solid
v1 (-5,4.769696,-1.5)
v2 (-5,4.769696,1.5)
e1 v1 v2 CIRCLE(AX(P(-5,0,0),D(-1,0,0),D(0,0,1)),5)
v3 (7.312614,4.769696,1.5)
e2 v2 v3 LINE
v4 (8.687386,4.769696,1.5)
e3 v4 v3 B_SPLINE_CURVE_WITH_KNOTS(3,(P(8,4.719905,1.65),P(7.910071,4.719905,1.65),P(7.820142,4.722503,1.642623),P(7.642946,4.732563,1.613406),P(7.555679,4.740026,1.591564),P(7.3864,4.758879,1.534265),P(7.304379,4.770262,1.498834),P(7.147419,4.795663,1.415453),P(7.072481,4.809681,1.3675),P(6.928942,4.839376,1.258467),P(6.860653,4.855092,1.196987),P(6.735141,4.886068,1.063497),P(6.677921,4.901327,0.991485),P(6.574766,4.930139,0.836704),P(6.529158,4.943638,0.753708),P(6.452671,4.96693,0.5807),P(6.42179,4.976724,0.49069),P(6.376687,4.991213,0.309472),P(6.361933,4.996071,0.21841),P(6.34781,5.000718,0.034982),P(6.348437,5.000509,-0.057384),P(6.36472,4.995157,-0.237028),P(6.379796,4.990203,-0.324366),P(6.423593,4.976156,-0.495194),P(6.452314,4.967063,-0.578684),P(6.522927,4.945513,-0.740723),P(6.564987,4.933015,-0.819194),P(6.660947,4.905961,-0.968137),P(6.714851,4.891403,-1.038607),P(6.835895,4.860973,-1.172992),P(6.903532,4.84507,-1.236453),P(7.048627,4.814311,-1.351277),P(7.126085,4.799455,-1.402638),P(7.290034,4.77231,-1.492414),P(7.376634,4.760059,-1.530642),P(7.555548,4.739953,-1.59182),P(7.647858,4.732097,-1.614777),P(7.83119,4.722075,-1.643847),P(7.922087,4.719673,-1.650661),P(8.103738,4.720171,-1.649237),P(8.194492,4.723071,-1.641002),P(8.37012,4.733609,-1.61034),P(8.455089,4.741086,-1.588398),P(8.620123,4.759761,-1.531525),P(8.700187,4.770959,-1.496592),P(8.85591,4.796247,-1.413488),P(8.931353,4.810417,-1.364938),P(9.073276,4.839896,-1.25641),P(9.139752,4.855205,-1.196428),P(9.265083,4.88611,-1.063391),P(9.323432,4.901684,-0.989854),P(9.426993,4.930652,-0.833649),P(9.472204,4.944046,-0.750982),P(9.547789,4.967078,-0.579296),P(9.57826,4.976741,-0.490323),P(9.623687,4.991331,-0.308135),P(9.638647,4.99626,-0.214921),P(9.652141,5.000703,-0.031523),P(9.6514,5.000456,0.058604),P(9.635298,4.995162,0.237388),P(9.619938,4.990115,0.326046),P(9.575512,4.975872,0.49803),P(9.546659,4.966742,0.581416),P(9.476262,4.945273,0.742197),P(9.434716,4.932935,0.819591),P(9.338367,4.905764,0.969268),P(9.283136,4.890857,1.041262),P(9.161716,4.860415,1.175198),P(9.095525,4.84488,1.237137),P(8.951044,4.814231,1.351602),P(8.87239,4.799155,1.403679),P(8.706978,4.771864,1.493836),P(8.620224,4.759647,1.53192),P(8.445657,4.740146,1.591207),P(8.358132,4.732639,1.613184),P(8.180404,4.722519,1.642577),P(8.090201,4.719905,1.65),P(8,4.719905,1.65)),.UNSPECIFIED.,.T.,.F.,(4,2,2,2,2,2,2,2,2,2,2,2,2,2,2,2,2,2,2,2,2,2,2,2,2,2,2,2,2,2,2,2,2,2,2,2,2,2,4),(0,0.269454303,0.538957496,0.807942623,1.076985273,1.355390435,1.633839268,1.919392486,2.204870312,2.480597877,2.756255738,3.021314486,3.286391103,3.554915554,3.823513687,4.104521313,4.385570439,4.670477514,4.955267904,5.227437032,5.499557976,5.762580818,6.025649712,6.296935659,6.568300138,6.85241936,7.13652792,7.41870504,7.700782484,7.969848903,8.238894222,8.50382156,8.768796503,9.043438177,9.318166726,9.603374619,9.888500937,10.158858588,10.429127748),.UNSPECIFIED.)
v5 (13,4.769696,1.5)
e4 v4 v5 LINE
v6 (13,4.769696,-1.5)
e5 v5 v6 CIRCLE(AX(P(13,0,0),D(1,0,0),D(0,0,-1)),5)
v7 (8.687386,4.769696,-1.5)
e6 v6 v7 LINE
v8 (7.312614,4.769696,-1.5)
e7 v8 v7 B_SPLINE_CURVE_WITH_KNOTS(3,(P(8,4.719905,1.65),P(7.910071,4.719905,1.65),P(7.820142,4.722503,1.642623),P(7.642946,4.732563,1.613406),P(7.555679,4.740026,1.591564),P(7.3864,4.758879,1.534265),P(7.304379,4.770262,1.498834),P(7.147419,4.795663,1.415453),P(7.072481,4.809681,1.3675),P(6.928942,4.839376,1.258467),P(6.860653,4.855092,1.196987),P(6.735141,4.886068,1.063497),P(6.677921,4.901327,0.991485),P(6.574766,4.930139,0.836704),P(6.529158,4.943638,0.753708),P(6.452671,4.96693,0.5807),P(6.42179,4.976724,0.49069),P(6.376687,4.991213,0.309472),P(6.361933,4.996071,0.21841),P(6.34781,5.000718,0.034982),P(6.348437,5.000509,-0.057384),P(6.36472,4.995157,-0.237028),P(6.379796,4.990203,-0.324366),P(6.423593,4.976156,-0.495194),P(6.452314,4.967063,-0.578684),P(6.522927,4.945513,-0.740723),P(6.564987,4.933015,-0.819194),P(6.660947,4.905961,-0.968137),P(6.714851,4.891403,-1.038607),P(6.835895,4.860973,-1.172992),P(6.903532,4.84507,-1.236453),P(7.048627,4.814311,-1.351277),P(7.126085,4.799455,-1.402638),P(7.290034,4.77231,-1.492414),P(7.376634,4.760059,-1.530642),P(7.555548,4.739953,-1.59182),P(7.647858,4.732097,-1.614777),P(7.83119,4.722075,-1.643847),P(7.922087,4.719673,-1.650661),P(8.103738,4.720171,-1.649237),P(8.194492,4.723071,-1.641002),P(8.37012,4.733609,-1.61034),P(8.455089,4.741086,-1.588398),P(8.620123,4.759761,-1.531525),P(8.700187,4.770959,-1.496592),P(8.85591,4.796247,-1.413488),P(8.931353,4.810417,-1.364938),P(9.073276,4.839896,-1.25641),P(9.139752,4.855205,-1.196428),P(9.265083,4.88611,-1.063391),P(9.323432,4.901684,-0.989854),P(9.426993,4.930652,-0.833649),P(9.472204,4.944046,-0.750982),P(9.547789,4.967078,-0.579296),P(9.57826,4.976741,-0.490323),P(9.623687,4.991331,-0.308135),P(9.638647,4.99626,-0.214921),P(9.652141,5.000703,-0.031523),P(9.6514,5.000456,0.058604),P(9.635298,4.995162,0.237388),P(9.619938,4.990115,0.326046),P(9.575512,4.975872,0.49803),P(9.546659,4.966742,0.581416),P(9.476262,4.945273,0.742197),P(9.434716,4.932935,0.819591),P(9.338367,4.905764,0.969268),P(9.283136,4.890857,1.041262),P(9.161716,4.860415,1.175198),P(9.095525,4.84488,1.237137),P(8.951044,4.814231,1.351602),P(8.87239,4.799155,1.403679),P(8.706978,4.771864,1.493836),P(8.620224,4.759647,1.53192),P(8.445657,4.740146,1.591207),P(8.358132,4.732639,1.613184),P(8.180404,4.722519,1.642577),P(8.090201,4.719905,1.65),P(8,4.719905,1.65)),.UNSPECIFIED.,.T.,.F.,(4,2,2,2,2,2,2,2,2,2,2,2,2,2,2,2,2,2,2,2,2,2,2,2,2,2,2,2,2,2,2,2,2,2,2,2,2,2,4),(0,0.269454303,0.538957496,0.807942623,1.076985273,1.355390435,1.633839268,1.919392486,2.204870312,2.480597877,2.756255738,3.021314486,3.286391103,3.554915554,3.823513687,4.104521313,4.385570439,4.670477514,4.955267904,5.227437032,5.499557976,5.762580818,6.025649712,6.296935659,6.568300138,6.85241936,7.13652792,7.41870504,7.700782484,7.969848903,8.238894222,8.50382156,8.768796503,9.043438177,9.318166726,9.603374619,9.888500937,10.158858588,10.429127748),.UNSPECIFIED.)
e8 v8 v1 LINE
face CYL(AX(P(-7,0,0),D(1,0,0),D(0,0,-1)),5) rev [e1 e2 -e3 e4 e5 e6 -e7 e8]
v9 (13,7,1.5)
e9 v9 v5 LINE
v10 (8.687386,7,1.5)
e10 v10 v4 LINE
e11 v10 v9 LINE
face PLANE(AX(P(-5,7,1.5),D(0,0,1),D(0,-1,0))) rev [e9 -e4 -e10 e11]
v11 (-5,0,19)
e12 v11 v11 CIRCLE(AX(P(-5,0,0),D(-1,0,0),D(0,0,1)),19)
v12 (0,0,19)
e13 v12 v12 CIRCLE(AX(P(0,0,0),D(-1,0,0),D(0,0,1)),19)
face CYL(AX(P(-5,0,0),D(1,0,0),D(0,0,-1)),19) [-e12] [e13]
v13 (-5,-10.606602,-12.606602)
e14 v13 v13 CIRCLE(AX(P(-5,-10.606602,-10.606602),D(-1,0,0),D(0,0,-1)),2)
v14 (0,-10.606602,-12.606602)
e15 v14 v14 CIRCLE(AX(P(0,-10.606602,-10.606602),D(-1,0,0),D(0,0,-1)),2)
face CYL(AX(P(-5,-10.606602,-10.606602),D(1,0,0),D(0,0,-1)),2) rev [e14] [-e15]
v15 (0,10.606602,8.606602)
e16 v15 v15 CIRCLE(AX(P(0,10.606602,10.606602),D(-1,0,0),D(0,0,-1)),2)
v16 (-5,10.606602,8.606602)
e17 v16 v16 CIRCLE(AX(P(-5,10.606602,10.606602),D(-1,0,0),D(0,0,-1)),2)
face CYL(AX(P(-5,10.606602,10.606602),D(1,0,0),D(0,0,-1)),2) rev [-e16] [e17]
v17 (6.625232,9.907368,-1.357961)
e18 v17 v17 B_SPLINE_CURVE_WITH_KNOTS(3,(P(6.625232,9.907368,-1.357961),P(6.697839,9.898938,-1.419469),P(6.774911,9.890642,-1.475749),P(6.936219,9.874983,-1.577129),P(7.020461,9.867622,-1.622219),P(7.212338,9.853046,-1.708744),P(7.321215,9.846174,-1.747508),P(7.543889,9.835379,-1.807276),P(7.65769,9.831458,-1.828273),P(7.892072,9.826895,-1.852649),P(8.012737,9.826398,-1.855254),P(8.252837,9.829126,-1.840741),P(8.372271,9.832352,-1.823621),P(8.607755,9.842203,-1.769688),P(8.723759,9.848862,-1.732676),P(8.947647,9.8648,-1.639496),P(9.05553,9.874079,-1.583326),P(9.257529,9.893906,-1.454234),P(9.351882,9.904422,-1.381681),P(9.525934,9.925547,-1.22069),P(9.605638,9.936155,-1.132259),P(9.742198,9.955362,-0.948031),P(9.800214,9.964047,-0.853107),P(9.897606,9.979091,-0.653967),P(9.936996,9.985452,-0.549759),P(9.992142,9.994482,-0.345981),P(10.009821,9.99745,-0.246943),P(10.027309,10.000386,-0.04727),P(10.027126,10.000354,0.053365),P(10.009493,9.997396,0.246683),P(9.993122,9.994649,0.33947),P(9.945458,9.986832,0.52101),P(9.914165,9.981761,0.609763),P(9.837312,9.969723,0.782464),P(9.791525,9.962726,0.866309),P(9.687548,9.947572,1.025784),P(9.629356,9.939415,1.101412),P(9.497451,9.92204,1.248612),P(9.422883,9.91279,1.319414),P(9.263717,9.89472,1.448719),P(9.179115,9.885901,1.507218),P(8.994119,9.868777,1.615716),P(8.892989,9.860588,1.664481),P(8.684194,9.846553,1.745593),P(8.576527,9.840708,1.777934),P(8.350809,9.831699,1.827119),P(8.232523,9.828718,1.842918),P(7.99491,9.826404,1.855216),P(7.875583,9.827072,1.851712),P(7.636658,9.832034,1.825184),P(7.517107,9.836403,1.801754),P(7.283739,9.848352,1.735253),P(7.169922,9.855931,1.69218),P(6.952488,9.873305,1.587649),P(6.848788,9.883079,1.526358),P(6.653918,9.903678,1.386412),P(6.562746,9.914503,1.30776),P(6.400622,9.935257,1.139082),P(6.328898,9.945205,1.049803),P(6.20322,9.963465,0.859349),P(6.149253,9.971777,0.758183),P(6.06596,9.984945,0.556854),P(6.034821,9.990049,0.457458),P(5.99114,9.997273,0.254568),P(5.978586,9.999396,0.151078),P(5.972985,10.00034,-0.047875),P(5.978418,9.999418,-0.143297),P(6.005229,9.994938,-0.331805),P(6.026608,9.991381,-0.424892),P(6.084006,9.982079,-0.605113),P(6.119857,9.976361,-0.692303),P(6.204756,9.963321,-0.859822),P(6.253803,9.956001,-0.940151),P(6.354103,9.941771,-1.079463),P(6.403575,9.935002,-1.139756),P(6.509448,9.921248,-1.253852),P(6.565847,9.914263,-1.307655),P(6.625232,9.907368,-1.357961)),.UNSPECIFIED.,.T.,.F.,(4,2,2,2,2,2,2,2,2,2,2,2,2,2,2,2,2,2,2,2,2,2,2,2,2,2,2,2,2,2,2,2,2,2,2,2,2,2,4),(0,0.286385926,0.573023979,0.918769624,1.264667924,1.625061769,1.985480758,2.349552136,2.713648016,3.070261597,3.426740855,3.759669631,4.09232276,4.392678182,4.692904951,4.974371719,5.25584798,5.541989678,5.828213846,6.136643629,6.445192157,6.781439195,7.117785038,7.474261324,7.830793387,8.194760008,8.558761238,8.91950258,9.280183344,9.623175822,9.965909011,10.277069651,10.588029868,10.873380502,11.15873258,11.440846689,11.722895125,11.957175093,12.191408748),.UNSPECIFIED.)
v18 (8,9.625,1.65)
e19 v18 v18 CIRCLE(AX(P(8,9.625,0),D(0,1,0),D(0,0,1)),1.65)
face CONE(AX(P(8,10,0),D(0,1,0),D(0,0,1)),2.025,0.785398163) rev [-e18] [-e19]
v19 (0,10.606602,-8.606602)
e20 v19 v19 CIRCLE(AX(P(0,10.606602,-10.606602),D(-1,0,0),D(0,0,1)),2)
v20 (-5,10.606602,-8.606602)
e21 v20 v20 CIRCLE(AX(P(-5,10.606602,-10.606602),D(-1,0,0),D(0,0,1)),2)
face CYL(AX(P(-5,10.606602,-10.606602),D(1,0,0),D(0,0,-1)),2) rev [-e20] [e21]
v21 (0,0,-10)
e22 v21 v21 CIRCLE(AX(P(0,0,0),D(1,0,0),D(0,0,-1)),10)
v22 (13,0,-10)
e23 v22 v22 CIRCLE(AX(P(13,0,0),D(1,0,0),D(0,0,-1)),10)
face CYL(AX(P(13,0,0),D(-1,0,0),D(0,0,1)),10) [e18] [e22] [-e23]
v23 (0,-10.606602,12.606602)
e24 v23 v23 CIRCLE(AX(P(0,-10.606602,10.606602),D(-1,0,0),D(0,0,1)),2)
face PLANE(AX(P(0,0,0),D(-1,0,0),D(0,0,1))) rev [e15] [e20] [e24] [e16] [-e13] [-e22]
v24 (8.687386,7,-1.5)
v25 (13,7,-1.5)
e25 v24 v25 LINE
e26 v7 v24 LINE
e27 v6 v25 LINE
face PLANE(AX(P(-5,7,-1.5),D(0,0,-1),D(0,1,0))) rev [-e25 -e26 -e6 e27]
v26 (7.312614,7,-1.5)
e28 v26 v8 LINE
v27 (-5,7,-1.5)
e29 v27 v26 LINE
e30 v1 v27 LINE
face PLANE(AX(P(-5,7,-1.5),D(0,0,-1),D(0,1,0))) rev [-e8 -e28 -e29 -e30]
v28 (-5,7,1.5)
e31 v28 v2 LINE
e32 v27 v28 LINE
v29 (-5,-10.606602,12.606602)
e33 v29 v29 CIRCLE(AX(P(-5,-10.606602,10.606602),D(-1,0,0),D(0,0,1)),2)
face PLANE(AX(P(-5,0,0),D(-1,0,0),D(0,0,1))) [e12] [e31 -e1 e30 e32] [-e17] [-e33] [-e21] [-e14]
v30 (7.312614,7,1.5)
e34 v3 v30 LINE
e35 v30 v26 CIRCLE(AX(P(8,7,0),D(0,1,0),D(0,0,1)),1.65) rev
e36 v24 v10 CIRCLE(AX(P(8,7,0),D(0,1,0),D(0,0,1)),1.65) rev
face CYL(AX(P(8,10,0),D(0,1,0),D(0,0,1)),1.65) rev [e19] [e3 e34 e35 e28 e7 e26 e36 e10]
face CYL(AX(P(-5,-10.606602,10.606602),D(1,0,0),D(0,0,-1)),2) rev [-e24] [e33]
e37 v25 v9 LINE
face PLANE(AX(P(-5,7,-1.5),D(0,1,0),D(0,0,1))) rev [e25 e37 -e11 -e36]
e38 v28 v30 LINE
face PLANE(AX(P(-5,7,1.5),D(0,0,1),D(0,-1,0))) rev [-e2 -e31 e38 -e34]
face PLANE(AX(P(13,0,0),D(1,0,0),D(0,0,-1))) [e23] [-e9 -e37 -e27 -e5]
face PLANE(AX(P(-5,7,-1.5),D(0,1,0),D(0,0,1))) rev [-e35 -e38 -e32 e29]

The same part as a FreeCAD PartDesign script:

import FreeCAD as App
import Part
import Sketcher

doc = App.newDocument("Part")
body = doc.addObject("PartDesign::Body", "Body")

# Sketch on YZ plane
sketch1 = body.newObject("Sketcher::SketchObject", "Sketch")
sketch1.AttachmentSupport = (doc.getObject("YZ_Plane"), [""])
sketch1.MapMode = "FlatFace"
sketch1.addGeometry(Part.Circle(App.Vector(0, 0, 0), App.Vector(0, 0, 1), 10), False)
sketch1.addConstraint(Sketcher.Constraint("Coincident", 0, 3, -1, 1))
sketch1.addConstraint(Sketcher.Constraint("Diameter", 0, 20.0))
pad1 = body.newObject("PartDesign::Pad", "Pad")
pad1.Profile = sketch1
pad1.Length = 13

# Sketch on YZ plane
sketch2 = body.newObject("Sketcher::SketchObject", "Sketch001")
sketch2.AttachmentSupport = (doc.getObject("YZ_Plane"), [""])
sketch2.MapMode = "FlatFace"
sketch2.addGeometry(Part.Circle(App.Vector(0, 0, 0), App.Vector(0, 0, 1), 19), False)
sketch2.addGeometry(Part.Circle(App.Vector(-10.6, -10.6, 0), App.Vector(0, 0, 1), 2), False)
sketch2.addGeometry(Part.Circle(App.Vector(-10.6, 10.6, 0), App.Vector(0, 0, 1), 2), False)
sketch2.addGeometry(Part.Circle(App.Vector(10.6, -10.6, 0), App.Vector(0, 0, 1), 2), False)
sketch2.addGeometry(Part.Circle(App.Vector(10.6, 10.6, 0), App.Vector(0, 0, 1), 2), False)
sketch2.addConstraint(Sketcher.Constraint("Coincident", 0, 3, -1, 1))
sketch2.addConstraint(Sketcher.Constraint("Equal", 1, 2))
sketch2.addConstraint(Sketcher.Constraint("Equal", 2, 3))
sketch2.addConstraint(Sketcher.Constraint("Equal", 3, 4))
sketch2.addConstraint(Sketcher.Constraint("Symmetric", 2, 3, 3, 3, -1, 1))
sketch2.addConstraint(Sketcher.Constraint("Symmetric", 1, 3, 4, 3, -1, 1))
sketch2.addConstraint(Sketcher.Constraint("Symmetric", 1, 3, 3, 3, -2))
sketch2.addConstraint(Sketcher.Constraint("Diameter", 0, 38.0))
sketch2.addConstraint(Sketcher.Constraint("Diameter", 1, 4.0))
sketch2.addConstraint(Sketcher.Constraint("DistanceX", 1, 3, -1, 1, 10.606602))
sketch2.addConstraint(Sketcher.Constraint("DistanceY", 1, 3, -1, 1, 10.606602))
pad2 = body.newObject("PartDesign::Pad", "Pad001")
pad2.Profile = sketch2
pad2.Length = 5
pad2.Reversed = True

# Sketch on XZ plane
sketch3 = body.newObject("Sketcher::SketchObject", "Sketch002")
sketch3.AttachmentSupport = (doc.getObject("XZ_Plane"), [""])
sketch3.MapMode = "FlatFace"
sketch3.AttachmentOffset = App.Placement(App.Vector(0, 0, -10), App.Rotation())
sketch3.addGeometry(Part.Circle(App.Vector(8, 0, 0), App.Vector(0, 0, 1), 1.6), False)
sketch3.addConstraint(Sketcher.Constraint("PointOnObject", 0, 3, -1))
sketch3.addConstraint(Sketcher.Constraint("Diameter", 0, 3.3))
sketch3.addConstraint(Sketcher.Constraint("DistanceX", -1, 1, 0, 3, 8.0))
doc.recompute()
hole = body.newObject("PartDesign::Hole", "Hole")
hole.Profile = sketch3
hole.ThreadType = "None"
hole.Diameter = 3.3
hole.DepthType = "Dimension"
hole.Depth = 10.1
hole.DrillPoint = "Angled"
hole.DrillPointAngle = 118
hole.HoleCutType = "Countersink"
hole.HoleCutDiameter = 4.05
hole.HoleCutCountersinkAngle = 90
hole.Reversed = True

# Sketch on YZ plane
sketch4 = body.newObject("Sketcher::SketchObject", "Sketch003")
sketch4.AttachmentSupport = (doc.getObject("YZ_Plane"), [""])
sketch4.MapMode = "FlatFace"
sketch4.AttachmentOffset = App.Placement(App.Vector(0, 0, 13), App.Rotation())
sketch4.addGeometry(Part.Circle(App.Vector(0, 0, 0), App.Vector(0, 0, 1), 5), False)
sketch4.addConstraint(Sketcher.Constraint("Coincident", 0, 3, -1, 1))
sketch4.addConstraint(Sketcher.Constraint("Diameter", 0, 10.0))
pocket1 = body.newObject("PartDesign::Pocket", "Pocket")
pocket1.Profile = sketch4
pocket1.Length = 20

# Sketch on YZ plane
sketch5 = body.newObject("Sketcher::SketchObject", "Sketch004")
sketch5.AttachmentSupport = (doc.getObject("YZ_Plane"), [""])
sketch5.MapMode = "FlatFace"
sketch5.AttachmentOffset = App.Placement(App.Vector(0, 0, 13), App.Rotation())
sketch5.addGeometry(Part.LineSegment(App.Vector(7, 1.5, 0), App.Vector(3, 1.5, 0)), False)
sketch5.addGeometry(Part.LineSegment(App.Vector(3, 1.5, 0), App.Vector(3, -1.5, 0)), False)
sketch5.addGeometry(Part.LineSegment(App.Vector(3, -1.5, 0), App.Vector(7, -1.5, 0)), False)
sketch5.addGeometry(Part.LineSegment(App.Vector(7, -1.5, 0), App.Vector(7, 1.5, 0)), False)
sketch5.addConstraint(Sketcher.Constraint("Coincident", 0, 2, 1, 1))
sketch5.addConstraint(Sketcher.Constraint("Coincident", 1, 2, 2, 1))
sketch5.addConstraint(Sketcher.Constraint("Coincident", 2, 2, 3, 1))
sketch5.addConstraint(Sketcher.Constraint("Coincident", 3, 2, 0, 1))
sketch5.addConstraint(Sketcher.Constraint("Horizontal", 0))
sketch5.addConstraint(Sketcher.Constraint("Vertical", 1))
sketch5.addConstraint(Sketcher.Constraint("Horizontal", 2))
sketch5.addConstraint(Sketcher.Constraint("Vertical", 3))
sketch5.addConstraint(Sketcher.Constraint("DistanceX", 0, 2, 0, 1, 4.0))
sketch5.addConstraint(Sketcher.Constraint("DistanceY", 1, 2, 1, 1, 3.0))
sketch5.addConstraint(Sketcher.Constraint("DistanceX", -1, 1, 0, 2, 3.0))
sketch5.addConstraint(Sketcher.Constraint("DistanceY", -1, 1, 0, 2, 1.5))
pocket2 = body.newObject("PartDesign::Pocket", "Pocket001")
pocket2.Profile = sketch5
pocket2.Length = 18

doc.recompute()
